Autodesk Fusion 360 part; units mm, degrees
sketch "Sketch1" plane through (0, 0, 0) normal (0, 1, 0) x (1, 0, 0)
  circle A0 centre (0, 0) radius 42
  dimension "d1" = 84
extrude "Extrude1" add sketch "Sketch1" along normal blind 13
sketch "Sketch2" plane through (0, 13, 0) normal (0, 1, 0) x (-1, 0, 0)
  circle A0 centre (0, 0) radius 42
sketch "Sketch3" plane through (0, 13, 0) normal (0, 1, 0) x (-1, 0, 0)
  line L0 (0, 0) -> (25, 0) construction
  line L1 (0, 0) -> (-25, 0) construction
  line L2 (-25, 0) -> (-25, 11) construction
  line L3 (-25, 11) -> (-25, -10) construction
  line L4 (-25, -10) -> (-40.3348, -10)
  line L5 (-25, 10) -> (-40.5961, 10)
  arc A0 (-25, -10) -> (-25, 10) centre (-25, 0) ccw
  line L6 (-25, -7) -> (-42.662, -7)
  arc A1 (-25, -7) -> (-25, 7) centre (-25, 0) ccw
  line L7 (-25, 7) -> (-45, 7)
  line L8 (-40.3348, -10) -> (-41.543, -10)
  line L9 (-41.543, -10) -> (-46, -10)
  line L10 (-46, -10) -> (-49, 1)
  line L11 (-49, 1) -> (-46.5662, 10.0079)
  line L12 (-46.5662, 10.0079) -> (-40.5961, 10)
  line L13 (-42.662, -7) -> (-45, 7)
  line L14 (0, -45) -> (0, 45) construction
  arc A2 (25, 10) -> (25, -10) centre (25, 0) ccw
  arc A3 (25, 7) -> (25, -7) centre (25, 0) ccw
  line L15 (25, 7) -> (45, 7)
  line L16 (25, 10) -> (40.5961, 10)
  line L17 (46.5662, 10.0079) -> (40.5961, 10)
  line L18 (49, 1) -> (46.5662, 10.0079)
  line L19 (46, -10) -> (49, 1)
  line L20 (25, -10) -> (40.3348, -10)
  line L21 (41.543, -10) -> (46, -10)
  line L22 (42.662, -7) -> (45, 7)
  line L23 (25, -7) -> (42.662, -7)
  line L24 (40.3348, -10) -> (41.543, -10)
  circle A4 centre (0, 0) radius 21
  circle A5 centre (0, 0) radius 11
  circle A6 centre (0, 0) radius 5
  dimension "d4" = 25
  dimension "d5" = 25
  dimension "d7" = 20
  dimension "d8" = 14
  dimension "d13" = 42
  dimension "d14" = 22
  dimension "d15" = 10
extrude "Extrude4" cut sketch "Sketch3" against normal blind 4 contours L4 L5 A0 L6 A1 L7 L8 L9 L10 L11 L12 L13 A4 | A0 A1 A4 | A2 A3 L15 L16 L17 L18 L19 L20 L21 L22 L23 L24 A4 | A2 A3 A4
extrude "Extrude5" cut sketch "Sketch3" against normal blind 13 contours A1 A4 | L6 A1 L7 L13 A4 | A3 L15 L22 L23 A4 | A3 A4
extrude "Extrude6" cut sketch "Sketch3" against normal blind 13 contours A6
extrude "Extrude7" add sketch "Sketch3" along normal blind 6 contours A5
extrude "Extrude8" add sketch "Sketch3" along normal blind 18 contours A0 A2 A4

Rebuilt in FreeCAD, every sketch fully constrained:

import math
import FreeCAD as App
import Part
import Sketcher
Q = App.Units.Quantity

doc = App.newDocument("Part")
params = doc.addObject("Spreadsheet::Sheet", "Params")
for row, (alias, value) in enumerate([
    ("sketch1_diameter", "84 mm"),
    ("pad1_length", "13 mm"),
    ("sketch2_radius", "10 mm"),
    ("sketch2_radius2", "7 mm"),
    ("sketch2_width", "20 mm"),
    ("sketch2_width2", "21 mm"),
    ("sketch2_length", "5.97 mm"),
    ("pocket1_length", "4 mm"),
    ("sketch3_radius", "7 mm"),
    ("sketch3_width", "20 mm"),
    ("pocket2_length", "13 mm"),
    ("sketch4_diameter", "10 mm"),
    ("pocket3_length", "13 mm"),
    ("sketch5_diameter", "22 mm"),
    ("sketch5_diameter2", "10 mm"),
    ("pad2_length", "6 mm"),
    ("sketch6_diameter", "22 mm"),
    ("sketch6_radius", "10 mm"),
    ("sketch6_radius2", "21 mm"),
    ("pad3_length", "18 mm"),
], start=1):
    params.set(f"A{row}", alias)
    params.set(f"B{row}", "=" + value)
    params.setAlias(f"B{row}", alias)

body = doc.addObject("PartDesign::Body", "Body")

# Sketch on XZ plane
sketch1 = body.newObject("Sketcher::SketchObject", "Sketch")
sketch1.AttachmentSupport = (doc.getObject("XZ_Plane"), [""])
sketch1.MapMode = "FlatFace"
sketch1.addGeometry(Part.Circle(App.Vector(0, 0, 0), App.Vector(0, 0, 1), 42), False)
sketch1.addConstraint(Sketcher.Constraint("Coincident", 0, 3, -1, 1))
sketch1.addConstraint(Sketcher.Constraint("Diameter", 0, Q("84 mm")))
sketch1.setExpression("Constraints[1]", "Params.sketch1_diameter")
pad1 = body.newObject("PartDesign::Pad", "Pad")
pad1.Profile = sketch1
pad1.setExpression("Length", "Params.pad1_length")
pad1.Reversed = True

# Sketch on XZ plane
sketch2 = body.newObject("Sketcher::SketchObject", "Sketch001")
sketch2.AttachmentSupport = (doc.getObject("XZ_Plane"), [""])
sketch2.MapMode = "FlatFace"
sketch2.AttachmentOffset = App.Placement(App.Vector(0, 0, -13), App.Rotation())
sketch2.addGeometry(Part.ArcOfCircle(Part.Circle(App.Vector(25, 0, 0), App.Vector(0, 0, 1), 10), math.radians(90), math.radians(270)), False)
sketch2.addGeometry(Part.LineSegment(App.Vector(25, 10, 0), App.Vector(40.5961, 10, 0)), False)
sketch2.addGeometry(Part.LineSegment(App.Vector(40.5961, 10, 0), App.Vector(46.5662, 10.0079, 0)), False)
sketch2.addGeometry(Part.LineSegment(App.Vector(46.5662, 10.0079, 0), App.Vector(49, 1, 0)), False)
sketch2.addGeometry(Part.LineSegment(App.Vector(49, 1, 0), App.Vector(46, -10, 0)), False)
sketch2.addGeometry(Part.LineSegment(App.Vector(46, -10, 0), App.Vector(25, -10, 0)), False)
sketch2.addGeometry(Part.ArcOfCircle(Part.Circle(App.Vector(25, 0, 0), App.Vector(0, 0, 1), 7), math.radians(90), math.radians(270)), False)
sketch2.addGeometry(Part.LineSegment(App.Vector(25, -7, 0), App.Vector(42.662, -7, 0)), False)
sketch2.addGeometry(Part.LineSegment(App.Vector(42.662, -7, 0), App.Vector(45, 7, 0)), False)
sketch2.addGeometry(Part.LineSegment(App.Vector(45, 7, 0), App.Vector(25, 7, 0)), False)
sketch2.addGeometry(Part.ArcOfCircle(Part.Circle(App.Vector(-25, 0, 0), App.Vector(0, 0, 1), 10), math.radians(-90), math.radians(90)), False)
sketch2.addGeometry(Part.LineSegment(App.Vector(-25, -10, 0), App.Vector(-46, -10, 0)), False)
sketch2.addGeometry(Part.LineSegment(App.Vector(-46, -10, 0), App.Vector(-49, 1, 0)), False)
sketch2.addGeometry(Part.LineSegment(App.Vector(-49, 1, 0), App.Vector(-46.5662, 10.0079, 0)), False)
sketch2.addGeometry(Part.LineSegment(App.Vector(-46.5662, 10.0079, 0), App.Vector(-40.5961, 10, 0)), False)
sketch2.addGeometry(Part.LineSegment(App.Vector(-40.5961, 10, 0), App.Vector(-25, 10, 0)), False)
sketch2.addGeometry(Part.ArcOfCircle(Part.Circle(App.Vector(-25, 0, 0), App.Vector(0, 0, 1), 7), math.radians(-90), math.radians(90)), False)
sketch2.addGeometry(Part.LineSegment(App.Vector(-25, 7, 0), App.Vector(-45, 7, 0)), False)
sketch2.addGeometry(Part.LineSegment(App.Vector(-45, 7, 0), App.Vector(-42.662, -7, 0)), False)
sketch2.addGeometry(Part.LineSegment(App.Vector(-42.662, -7, 0), App.Vector(-25, -7, 0)), False)
sketch2.addConstraint(Sketcher.Constraint("Tangent", 0, 1, 1, 1))
sketch2.addConstraint(Sketcher.Constraint("Coincident", 1, 2, 2, 1))
sketch2.addConstraint(Sketcher.Constraint("Coincident", 2, 2, 3, 1))
sketch2.addConstraint(Sketcher.Constraint("Coincident", 3, 2, 4, 1))
sketch2.addConstraint(Sketcher.Constraint("Coincident", 4, 2, 5, 1))
sketch2.addConstraint(Sketcher.Constraint("Tangent", 5, 2, 0, 2))
sketch2.addConstraint(Sketcher.Constraint("Tangent", 6, 2, 7, 1))
sketch2.addConstraint(Sketcher.Constraint("Coincident", 7, 2, 8, 1))
sketch2.addConstraint(Sketcher.Constraint("Coincident", 8, 2, 9, 1))
sketch2.addConstraint(Sketcher.Constraint("Tangent", 9, 2, 6, 1))
sketch2.addConstraint(Sketcher.Constraint("Tangent", 10, 1, 11, 1))
sketch2.addConstraint(Sketcher.Constraint("Coincident", 11, 2, 12, 1))
sketch2.addConstraint(Sketcher.Constraint("Coincident", 12, 2, 13, 1))
sketch2.addConstraint(Sketcher.Constraint("Coincident", 13, 2, 14, 1))
sketch2.addConstraint(Sketcher.Constraint("Coincident", 14, 2, 15, 1))
sketch2.addConstraint(Sketcher.Constraint("Tangent", 15, 2, 10, 2))
sketch2.addConstraint(Sketcher.Constraint("Tangent", 16, 2, 17, 1))
sketch2.addConstraint(Sketcher.Constraint("Coincident", 17, 2, 18, 1))
sketch2.addConstraint(Sketcher.Constraint("Coincident", 18, 2, 19, 1))
sketch2.addConstraint(Sketcher.Constraint("Tangent", 19, 2, 16, 1))
sketch2.addConstraint(Sketcher.Constraint("Horizontal", 1))
sketch2.addConstraint(Sketcher.Constraint("Horizontal", 5))
sketch2.addConstraint(Sketcher.Constraint("Horizontal", 7))
sketch2.addConstraint(Sketcher.Constraint("Horizontal", 9))
sketch2.addConstraint(Sketcher.Constraint("Horizontal", 11))
sketch2.addConstraint(Sketcher.Constraint("Horizontal", 15))
sketch2.addConstraint(Sketcher.Constraint("Horizontal", 17))
sketch2.addConstraint(Sketcher.Constraint("Horizontal", 19))
sketch2.addConstraint(Sketcher.Constraint("Coincident", 6, 3, 0, 3))
sketch2.addConstraint(Sketcher.Constraint("Coincident", 16, 3, 10, 3))
sketch2.addConstraint(Sketcher.Constraint("Equal", 0, 10))
sketch2.addConstraint(Sketcher.Constraint("Equal", 6, 16))
sketch2.addConstraint(Sketcher.Constraint("Symmetric", 0, 3, 10, 3, -1, 1))
sketch2.addConstraint(Sketcher.Constraint("Symmetric", 4, 2, 11, 2, -2))
sketch2.addConstraint(Sketcher.Constraint("Symmetric", 3, 2, 12, 2, -2))
sketch2.addConstraint(Sketcher.Constraint("Symmetric", 2, 2, 13, 2, -2))
sketch2.addConstraint(Sketcher.Constraint("Equal", 1, 15))
sketch2.addConstraint(Sketcher.Constraint("Equal", 9, 17))
sketch2.addConstraint(Sketcher.Constraint("Equal", 7, 19))
sketch2.addConstraint(Sketcher.Constraint("Radius", 0, Q("10 mm")))
sketch2.addConstraint(Sketcher.Constraint("Radius", 6, Q("7 mm")))
sketch2.addConstraint(Sketcher.Constraint("DistanceX", 9, 2, 9, 1, Q("20 mm")))
sketch2.addConstraint(Sketcher.Constraint("DistanceX", -1, 1, 0, 3, Q("25 mm")))
sketch2.addConstraint(Sketcher.Constraint("DistanceX", 5, 2, 5, 1, Q("21 mm")))
sketch2.addConstraint(Sketcher.Constraint("DistanceX", -1, 1, 3, 2, Q("49 mm")))
sketch2.addConstraint(Sketcher.Constraint("DistanceY", -1, 1, 3, 2, Q("1 mm")))
sketch2.addConstraint(Sketcher.Constraint("Angle", 3, Q("-74.8805 deg")))
sketch2.addConstraint(Sketcher.Constraint("Angle", 8, Q("80.519 deg")))
sketch2.addConstraint(Sketcher.Constraint("Distance", 2, Q("5.97 mm")))
sketch2.addConstraint(Sketcher.Constraint("DistanceX", 1, 1, 1, 2, Q("15.596 mm")))
sketch2.setExpression("Constraints[39]", "Params.sketch2_radius")
sketch2.setExpression("Constraints[40]", "Params.sketch2_radius2")
sketch2.setExpression("Constraints[41]", "Params.sketch2_width")
sketch2.setExpression("Constraints[43]", "Params.sketch2_width2")
sketch2.setExpression("Constraints[48]", "Params.sketch2_length")
pocket1 = body.newObject("PartDesign::Pocket", "Pocket")
pocket1.Profile = sketch2
pocket1.setExpression("Length", "Params.pocket1_length")
pocket1.Reversed = True

# Sketch on XZ plane
sketch3 = body.newObject("Sketcher::SketchObject", "Sketch002")
sketch3.AttachmentSupport = (doc.getObject("XZ_Plane"), [""])
sketch3.MapMode = "FlatFace"
sketch3.AttachmentOffset = App.Placement(App.Vector(0, 0, -13), App.Rotation())
sketch3.addGeometry(Part.LineSegment(App.Vector(25, 7, 0), App.Vector(45, 7, 0)), False)
sketch3.addGeometry(Part.LineSegment(App.Vector(45, 7, 0), App.Vector(42.662, -7, 0)), False)
sketch3.addGeometry(Part.LineSegment(App.Vector(42.662, -7, 0), App.Vector(25, -7, 0)), False)
sketch3.addGeometry(Part.ArcOfCircle(Part.Circle(App.Vector(25, 0, 0), App.Vector(0, 0, 1), 7), math.radians(90), math.radians(270)), False)
sketch3.addGeometry(Part.ArcOfCircle(Part.Circle(App.Vector(-25, 0, 0), App.Vector(0, 0, 1), 7), math.radians(-90), math.radians(90)), False)
sketch3.addGeometry(Part.LineSegment(App.Vector(-25, -7, 0), App.Vector(-42.662, -7, 0)), False)
sketch3.addGeometry(Part.LineSegment(App.Vector(-42.662, -7, 0), App.Vector(-45, 7, 0)), False)
sketch3.addGeometry(Part.LineSegment(App.Vector(-45, 7, 0), App.Vector(-25, 7, 0)), False)
sketch3.addConstraint(Sketcher.Constraint("Coincident", 0, 2, 1, 1))
sketch3.addConstraint(Sketcher.Constraint("Coincident", 1, 2, 2, 1))
sketch3.addConstraint(Sketcher.Constraint("Tangent", 2, 2, 3, 2))
sketch3.addConstraint(Sketcher.Constraint("Tangent", 3, 1, 0, 1))
sketch3.addConstraint(Sketcher.Constraint("Tangent", 4, 1, 5, 1))
sketch3.addConstraint(Sketcher.Constraint("Coincident", 5, 2, 6, 1))
sketch3.addConstraint(Sketcher.Constraint("Coincident", 6, 2, 7, 1))
sketch3.addConstraint(Sketcher.Constraint("Tangent", 7, 2, 4, 2))
sketch3.addConstraint(Sketcher.Constraint("Horizontal", 0))
sketch3.addConstraint(Sketcher.Constraint("Horizontal", 2))
sketch3.addConstraint(Sketcher.Constraint("Horizontal", 5))
sketch3.addConstraint(Sketcher.Constraint("Horizontal", 7))
sketch3.addConstraint(Sketcher.Constraint("Equal", 3, 4))
sketch3.addConstraint(Sketcher.Constraint("Symmetric", 3, 3, 4, 3, -1, 1))
sketch3.addConstraint(Sketcher.Constraint("Symmetric", 1, 2, 5, 2, -2))
sketch3.addConstraint(Sketcher.Constraint("Equal", 0, 7))
sketch3.addConstraint(Sketcher.Constraint("Radius", 3, Q("7 mm")))
sketch3.addConstraint(Sketcher.Constraint("DistanceX", 0, 1, 0, 2, Q("20 mm")))
sketch3.addConstraint(Sketcher.Constraint("DistanceX", -1, 1, 3, 3, Q("25 mm")))
sketch3.addConstraint(Sketcher.Constraint("Angle", 1, Q("-99.481 deg")))
sketch3.setExpression("Constraints[16]", "Params.sketch3_radius")
sketch3.setExpression("Constraints[17]", "Params.sketch3_width")
pocket2 = body.newObject("PartDesign::Pocket", "Pocket001")
pocket2.Profile = sketch3
pocket2.setExpression("Length", "Params.pocket2_length")
pocket2.Reversed = True

# Sketch on XZ plane
sketch4 = body.newObject("Sketcher::SketchObject", "Sketch003")
sketch4.AttachmentSupport = (doc.getObject("XZ_Plane"), [""])
sketch4.MapMode = "FlatFace"
sketch4.AttachmentOffset = App.Placement(App.Vector(0, 0, -13), App.Rotation())
sketch4.addGeometry(Part.Circle(App.Vector(0, 0, 0), App.Vector(0, 0, 1), 5), False)
sketch4.addConstraint(Sketcher.Constraint("Coincident", 0, 3, -1, 1))
sketch4.addConstraint(Sketcher.Constraint("Diameter", 0, Q("10 mm")))
sketch4.setExpression("Constraints[1]", "Params.sketch4_diameter")
pocket3 = body.newObject("PartDesign::Pocket", "Pocket002")
pocket3.Profile = sketch4
pocket3.setExpression("Length", "Params.pocket3_length")
pocket3.Reversed = True

# Sketch on XZ plane
sketch5 = body.newObject("Sketcher::SketchObject", "Sketch004")
sketch5.AttachmentSupport = (doc.getObject("XZ_Plane"), [""])
sketch5.MapMode = "FlatFace"
sketch5.AttachmentOffset = App.Placement(App.Vector(0, 0, -13), App.Rotation())
sketch5.addGeometry(Part.Circle(App.Vector(0, 0, 0), App.Vector(0, 0, 1), 11), False)
sketch5.addGeometry(Part.Circle(App.Vector(0, 0, 0), App.Vector(0, 0, 1), 5), False)
sketch5.addConstraint(Sketcher.Constraint("Coincident", 0, 3, -1, 1))
sketch5.addConstraint(Sketcher.Constraint("Coincident", 1, 3, -1, 1))
sketch5.addConstraint(Sketcher.Constraint("Diameter", 0, Q("22 mm")))
sketch5.addConstraint(Sketcher.Constraint("Diameter", 1, Q("10 mm")))
sketch5.setExpression("Constraints[2]", "Params.sketch5_diameter")
sketch5.setExpression("Constraints[3]", "Params.sketch5_diameter2")
pad2 = body.newObject("PartDesign::Pad", "Pad001")
pad2.Profile = sketch5
pad2.setExpression("Length", "Params.pad2_length")
pad2.Reversed = True

# Sketch on XZ plane
sketch6 = body.newObject("Sketcher::SketchObject", "Sketch005")
sketch6.AttachmentSupport = (doc.getObject("XZ_Plane"), [""])
sketch6.MapMode = "FlatFace"
sketch6.AttachmentOffset = App.Placement(App.Vector(0, 0, -13), App.Rotation())
sketch6.addGeometry(Part.ArcOfCircle(Part.Circle(App.Vector(25, 0, 0), App.Vector(0, 0, 1), 10), math.radians(124.610877), math.radians(235.389123)), False)
sketch6.addGeometry(Part.ArcOfCircle(Part.Circle(App.Vector(0, 0, 0), App.Vector(0, 0, 1), 21), math.radians(-156.926082), math.radians(-23.073918)), False)
sketch6.addGeometry(Part.ArcOfCircle(Part.Circle(App.Vector(-25, 0, 0), App.Vector(0, 0, 1), 10), math.radians(-55.389123), math.radians(55.389123)), False)
sketch6.addGeometry(Part.ArcOfCircle(Part.Circle(App.Vector(0, 0, 0), App.Vector(0, 0, 1), 21), math.radians(23.073918), math.radians(156.926082)), False)
sketch6.addGeometry(Part.Circle(App.Vector(0, 0, 0), App.Vector(0, 0, 1), 11), False)
sketch6.addConstraint(Sketcher.Constraint("Coincident", 0, 2, 1, 2))
sketch6.addConstraint(Sketcher.Constraint("Coincident", 1, 1, 2, 1))
sketch6.addConstraint(Sketcher.Constraint("Coincident", 2, 2, 3, 2))
sketch6.addConstraint(Sketcher.Constraint("Coincident", 3, 1, 0, 1))
sketch6.addConstraint(Sketcher.Constraint("Coincident", 1, 3, -1, 1))
sketch6.addConstraint(Sketcher.Constraint("Coincident", 3, 3, -1, 1))
sketch6.addConstraint(Sketcher.Constraint("Coincident", 4, 3, -1, 1))
sketch6.addConstraint(Sketcher.Constraint("Equal", 0, 2))
sketch6.addConstraint(Sketcher.Constraint("Equal", 1, 3))
sketch6.addConstraint(Sketcher.Constraint("Symmetric", 0, 3, 2, 3, -1, 1))
sketch6.addConstraint(Sketcher.Constraint("PointOnObject", 0, 3, -1))
sketch6.addConstraint(Sketcher.Constraint("Diameter", 4, Q("22 mm")))
sketch6.addConstraint(Sketcher.Constraint("Radius", 0, Q("10 mm")))
sketch6.addConstraint(Sketcher.Constraint("Radius", 1, Q("21 mm")))
sketch6.addConstraint(Sketcher.Constraint("DistanceX", -1, 1, 0, 3, Q("25 mm")))
sketch6.setExpression("Constraints[11]", "Params.sketch6_diameter")
sketch6.setExpression("Constraints[12]", "Params.sketch6_radius")
sketch6.setExpression("Constraints[13]", "Params.sketch6_radius2")
pad3 = body.newObject("PartDesign::Pad", "Pad002")
pad3.Profile = sketch6
pad3.setExpression("Length", "Params.pad3_length")
pad3.Reversed = True

doc.recompute()
